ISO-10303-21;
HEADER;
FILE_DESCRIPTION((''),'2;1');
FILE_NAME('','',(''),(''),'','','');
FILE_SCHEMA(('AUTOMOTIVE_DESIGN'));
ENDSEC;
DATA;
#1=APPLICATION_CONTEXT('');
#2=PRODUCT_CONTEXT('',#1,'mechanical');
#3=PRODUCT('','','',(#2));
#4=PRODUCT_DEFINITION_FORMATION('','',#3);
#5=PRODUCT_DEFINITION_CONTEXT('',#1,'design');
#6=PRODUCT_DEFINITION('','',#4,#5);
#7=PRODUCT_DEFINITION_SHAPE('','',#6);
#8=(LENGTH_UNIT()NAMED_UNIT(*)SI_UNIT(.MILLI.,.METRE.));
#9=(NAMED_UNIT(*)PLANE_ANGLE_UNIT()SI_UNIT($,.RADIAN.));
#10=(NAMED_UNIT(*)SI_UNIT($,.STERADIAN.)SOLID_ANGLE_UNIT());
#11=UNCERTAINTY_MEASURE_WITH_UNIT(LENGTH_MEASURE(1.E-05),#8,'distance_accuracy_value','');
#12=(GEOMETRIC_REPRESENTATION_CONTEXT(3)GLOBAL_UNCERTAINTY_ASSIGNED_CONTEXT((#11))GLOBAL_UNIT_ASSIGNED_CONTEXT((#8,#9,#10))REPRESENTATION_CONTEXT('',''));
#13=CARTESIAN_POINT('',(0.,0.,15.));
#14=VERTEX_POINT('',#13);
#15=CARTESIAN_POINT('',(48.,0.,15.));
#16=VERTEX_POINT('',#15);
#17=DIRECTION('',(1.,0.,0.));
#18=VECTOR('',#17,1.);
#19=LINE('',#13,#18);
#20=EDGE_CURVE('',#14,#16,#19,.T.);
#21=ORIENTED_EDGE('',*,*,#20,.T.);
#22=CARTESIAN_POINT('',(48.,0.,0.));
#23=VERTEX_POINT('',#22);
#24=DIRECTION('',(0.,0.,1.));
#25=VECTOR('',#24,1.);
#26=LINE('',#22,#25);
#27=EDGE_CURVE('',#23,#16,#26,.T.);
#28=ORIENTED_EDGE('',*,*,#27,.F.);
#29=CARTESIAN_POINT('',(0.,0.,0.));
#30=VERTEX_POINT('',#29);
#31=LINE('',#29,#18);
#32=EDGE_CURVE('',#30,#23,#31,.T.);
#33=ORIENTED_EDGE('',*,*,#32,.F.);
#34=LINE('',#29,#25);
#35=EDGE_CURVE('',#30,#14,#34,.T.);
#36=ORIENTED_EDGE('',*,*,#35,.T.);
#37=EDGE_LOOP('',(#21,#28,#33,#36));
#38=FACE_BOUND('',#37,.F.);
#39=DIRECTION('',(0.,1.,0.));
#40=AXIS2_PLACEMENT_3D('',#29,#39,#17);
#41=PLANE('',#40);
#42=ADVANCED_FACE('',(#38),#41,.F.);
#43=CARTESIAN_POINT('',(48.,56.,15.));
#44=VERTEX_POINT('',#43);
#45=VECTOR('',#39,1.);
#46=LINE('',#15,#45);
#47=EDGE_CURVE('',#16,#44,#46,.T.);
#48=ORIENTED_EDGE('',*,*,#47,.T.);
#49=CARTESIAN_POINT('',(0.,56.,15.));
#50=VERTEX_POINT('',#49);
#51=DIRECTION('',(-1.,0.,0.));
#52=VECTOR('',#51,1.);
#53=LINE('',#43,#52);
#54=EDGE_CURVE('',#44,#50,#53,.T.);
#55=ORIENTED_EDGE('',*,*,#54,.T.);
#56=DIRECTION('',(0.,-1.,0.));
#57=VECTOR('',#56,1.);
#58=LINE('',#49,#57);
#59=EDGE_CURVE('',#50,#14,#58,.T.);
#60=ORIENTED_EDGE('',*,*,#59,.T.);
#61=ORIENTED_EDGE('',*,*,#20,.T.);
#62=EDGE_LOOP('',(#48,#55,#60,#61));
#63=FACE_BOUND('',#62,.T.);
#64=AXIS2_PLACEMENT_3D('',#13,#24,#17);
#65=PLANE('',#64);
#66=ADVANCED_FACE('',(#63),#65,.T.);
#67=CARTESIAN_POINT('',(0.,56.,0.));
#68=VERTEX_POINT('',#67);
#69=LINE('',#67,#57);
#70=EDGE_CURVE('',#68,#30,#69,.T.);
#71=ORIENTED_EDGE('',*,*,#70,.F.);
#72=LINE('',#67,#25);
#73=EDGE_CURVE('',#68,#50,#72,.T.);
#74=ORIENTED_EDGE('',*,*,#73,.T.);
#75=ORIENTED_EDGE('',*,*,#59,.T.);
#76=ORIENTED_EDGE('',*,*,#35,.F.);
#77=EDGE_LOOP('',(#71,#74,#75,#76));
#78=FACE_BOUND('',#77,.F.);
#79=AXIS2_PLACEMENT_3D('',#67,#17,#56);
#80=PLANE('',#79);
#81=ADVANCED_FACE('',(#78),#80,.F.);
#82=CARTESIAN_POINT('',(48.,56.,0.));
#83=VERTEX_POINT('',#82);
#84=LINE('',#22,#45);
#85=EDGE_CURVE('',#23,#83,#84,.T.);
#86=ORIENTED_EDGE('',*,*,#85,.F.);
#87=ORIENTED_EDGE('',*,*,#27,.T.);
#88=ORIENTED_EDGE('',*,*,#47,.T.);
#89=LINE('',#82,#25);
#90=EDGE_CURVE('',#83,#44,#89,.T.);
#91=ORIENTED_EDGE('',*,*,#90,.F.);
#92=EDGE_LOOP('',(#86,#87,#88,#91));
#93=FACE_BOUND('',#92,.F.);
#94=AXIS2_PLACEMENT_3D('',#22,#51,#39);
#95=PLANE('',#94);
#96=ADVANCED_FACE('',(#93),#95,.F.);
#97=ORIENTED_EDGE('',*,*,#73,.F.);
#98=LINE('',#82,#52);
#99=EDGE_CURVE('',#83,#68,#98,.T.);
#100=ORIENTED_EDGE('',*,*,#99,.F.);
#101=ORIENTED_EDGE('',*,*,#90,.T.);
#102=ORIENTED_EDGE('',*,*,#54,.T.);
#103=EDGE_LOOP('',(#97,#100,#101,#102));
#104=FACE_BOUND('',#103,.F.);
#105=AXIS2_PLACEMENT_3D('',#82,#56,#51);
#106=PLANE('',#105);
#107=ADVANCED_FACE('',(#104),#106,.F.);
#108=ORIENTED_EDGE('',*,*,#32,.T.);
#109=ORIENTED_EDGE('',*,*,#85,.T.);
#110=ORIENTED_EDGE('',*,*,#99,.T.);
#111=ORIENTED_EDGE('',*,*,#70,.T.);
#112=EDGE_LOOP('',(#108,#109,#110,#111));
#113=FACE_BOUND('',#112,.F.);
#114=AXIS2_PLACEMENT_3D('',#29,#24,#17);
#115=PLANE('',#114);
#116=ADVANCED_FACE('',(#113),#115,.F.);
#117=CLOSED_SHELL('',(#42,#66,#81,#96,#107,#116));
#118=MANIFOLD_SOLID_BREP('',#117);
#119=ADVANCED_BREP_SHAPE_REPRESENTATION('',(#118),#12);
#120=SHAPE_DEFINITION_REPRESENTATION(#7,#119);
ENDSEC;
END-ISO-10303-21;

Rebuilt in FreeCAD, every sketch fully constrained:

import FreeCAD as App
import Part
import Sketcher
Q = App.Units.Quantity

doc = App.newDocument("Part")
body = doc.addObject("PartDesign::Body", "Body")

# Sketch on XY plane
sketch1 = body.newObject("Sketcher::SketchObject", "Sketch")
sketch1.AttachmentSupport = (doc.getObject("XY_Plane"), [""])
sketch1.MapMode = "FlatFace"
sketch1.addGeometry(Part.LineSegment(App.Vector(0, 56, 0), App.Vector(0, 0, 0)), False)
sketch1.addGeometry(Part.LineSegment(App.Vector(0, 0, 0), App.Vector(48, 0, 0)), False)
sketch1.addGeometry(Part.LineSegment(App.Vector(48, 0, 0), App.Vector(48, 56, 0)), False)
sketch1.addGeometry(Part.LineSegment(App.Vector(48, 56, 0), App.Vector(0, 56, 0)), False)
sketch1.addConstraint(Sketcher.Constraint("Coincident", 0, 2, 1, 1))
sketch1.addConstraint(Sketcher.Constraint("Coincident", 1, 2, 2, 1))
sketch1.addConstraint(Sketcher.Constraint("Coincident", 2, 2, 3, 1))
sketch1.addConstraint(Sketcher.Constraint("Coincident", 3, 2, 0, 1))
sketch1.addConstraint(Sketcher.Constraint("Vertical", 0))
sketch1.addConstraint(Sketcher.Constraint("Horizontal", 1))
sketch1.addConstraint(Sketcher.Constraint("Vertical", 2))
sketch1.addConstraint(Sketcher.Constraint("Horizontal", 3))
sketch1.addConstraint(Sketcher.Constraint("Coincident", 0, 2, -1, 1))
sketch1.addConstraint(Sketcher.Constraint("DistanceX", 1, 1, 1, 2, Q("48 mm")))
sketch1.addConstraint(Sketcher.Constraint("DistanceY", 0, 2, 0, 1, Q("56 mm")))
pad1 = body.newObject("PartDesign::Pad", "Pad")
pad1.Profile = sketch1
pad1.Length = 15

doc.recompute()
